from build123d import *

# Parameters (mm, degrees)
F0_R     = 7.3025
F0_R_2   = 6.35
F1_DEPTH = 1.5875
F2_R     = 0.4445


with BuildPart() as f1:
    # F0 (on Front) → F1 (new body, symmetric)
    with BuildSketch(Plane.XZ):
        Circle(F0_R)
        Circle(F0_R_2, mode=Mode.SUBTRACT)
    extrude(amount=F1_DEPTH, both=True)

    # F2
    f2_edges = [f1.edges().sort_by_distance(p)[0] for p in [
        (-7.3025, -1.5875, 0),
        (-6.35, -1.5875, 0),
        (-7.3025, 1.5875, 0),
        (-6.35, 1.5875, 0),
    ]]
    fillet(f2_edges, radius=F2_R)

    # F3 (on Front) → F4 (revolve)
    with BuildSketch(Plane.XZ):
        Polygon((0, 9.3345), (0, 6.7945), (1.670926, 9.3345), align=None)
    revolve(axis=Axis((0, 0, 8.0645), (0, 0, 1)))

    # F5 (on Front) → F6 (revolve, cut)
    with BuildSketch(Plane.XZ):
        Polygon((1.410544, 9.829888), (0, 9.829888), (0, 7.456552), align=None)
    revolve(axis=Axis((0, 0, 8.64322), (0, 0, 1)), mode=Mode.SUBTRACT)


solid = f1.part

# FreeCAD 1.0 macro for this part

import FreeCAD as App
import Part
import Sketcher
from FreeCAD import Vector
Q = App.Units.Quantity


def edges_at(feature, points):
    """Names of the edges that pass closest to the given points."""
    edges = feature.Shape.Edges
    near = lambda p: min(range(len(edges)), key=lambda i: edges[i].distToShape(Part.Vertex(*p))[0])
    return sorted({f"Edge{near(p) + 1}" for p in points})

doc = App.newDocument("Part")
body = doc.addObject("PartDesign::Body", "Body")

# Sketch on XZ plane
sketch1 = doc.addObject("Sketcher::SketchObject", "Sketch")
body.addObject(sketch1)
sketch1.AttachmentSupport = (doc.XZ_Plane, [""])
sketch1.MapMode = "FlatFace"
sketch1.addGeometry(Part.Circle(Vector(0, 0, 0), Vector(0, 0, 1), 7.3025), False)
sketch1.addGeometry(Part.Circle(Vector(0, 0, 0), Vector(0, 0, 1), 6.35), False)
sketch1.addConstraint(Sketcher.Constraint("Coincident", 0, 3, -1, 1))
sketch1.addConstraint(Sketcher.Constraint("Coincident", 1, 3, -1, 1))
sketch1.addConstraint(Sketcher.Constraint("Diameter", 1, Q("0.5 in")))
sketch1.addConstraint(Sketcher.Constraint("Diameter", 0, Q("0.575 in")))
pad1 = doc.addObject("PartDesign::Pad", "Pad")
body.addObject(pad1)
pad1.Profile = sketch1
pad1.Length = Q("0.125 in")
pad1.Midplane = True
doc.recompute()

fillet = doc.addObject("PartDesign::Fillet", "Fillet")
body.addObject(fillet)
fillet.Base = (pad1, edges_at(pad1, [
    (-7.303, -1.587, 0),
    (-6.35, -1.587, 0),
    (-7.303, 1.587, 0),
    (-6.35, 1.587, 0),
]))
fillet.Radius = Q("0.0175 in")

# Sketch on XZ plane
sketch2 = doc.addObject("Sketcher::SketchObject", "Sketch001")
body.addObject(sketch2)
sketch2.AttachmentSupport = (doc.XZ_Plane, [""])
sketch2.MapMode = "FlatFace"
sketch2.addGeometry(Part.LineSegment(Vector(0, 9.3345, 0), Vector(0, 6.7945, 0)), False)
sketch2.addGeometry(Part.LineSegment(Vector(0, 6.7945, 0), Vector(1.670926, 9.3345, 0)), False)
sketch2.addGeometry(Part.LineSegment(Vector(1.670926, 9.3345, 0), Vector(0, 9.3345, 0)), False)
sketch2.addConstraint(Sketcher.Constraint("Coincident", 0, 2, 1, 1))
sketch2.addConstraint(Sketcher.Constraint("Coincident", 1, 2, 2, 1))
sketch2.addConstraint(Sketcher.Constraint("Coincident", 2, 2, 0, 1))
sketch2.addConstraint(Sketcher.Constraint("Vertical", 0))
sketch2.addConstraint(Sketcher.Constraint("Horizontal", 2))
sketch2.addConstraint(Sketcher.Constraint("PointOnObject", 0, 2, -2))
sketch2.addConstraint(Sketcher.Constraint("DistanceY", 0, 2, 0, 1, Q("0.1 in")))
sketch2.addConstraint(Sketcher.Constraint("DistanceY", -1, 1, 0, 2, Q("0.2675 in")))
sketch2.addConstraint(Sketcher.Constraint("DistanceX", 2, 2, 2, 1, Q("1.670926 mm")))
revolution = doc.addObject("PartDesign::Revolution", "Revolution")
body.addObject(revolution)
revolution.Profile = sketch2
revolution.ReferenceAxis = (sketch2, ["V_Axis"])
revolution.Angle = 360

# Sketch on XZ plane
sketch3 = doc.addObject("Sketcher::SketchObject", "Sketch002")
body.addObject(sketch3)
sketch3.AttachmentSupport = (doc.XZ_Plane, [""])
sketch3.MapMode = "FlatFace"
sketch3.addGeometry(Part.LineSegment(Vector(1.410544, 9.829888, 0), Vector(0, 9.829888, 0)), False)
sketch3.addGeometry(Part.LineSegment(Vector(0, 9.829888, 0), Vector(0, 7.456552, 0)), False)
sketch3.addGeometry(Part.LineSegment(Vector(0, 7.456552, 0), Vector(1.410544, 9.829888, 0)), False)
sketch3.addConstraint(Sketcher.Constraint("Coincident", 0, 2, 1, 1))
sketch3.addConstraint(Sketcher.Constraint("Coincident", 1, 2, 2, 1))
sketch3.addConstraint(Sketcher.Constraint("Coincident", 2, 2, 0, 1))
sketch3.addConstraint(Sketcher.Constraint("Horizontal", 0))
sketch3.addConstraint(Sketcher.Constraint("Vertical", 1))
sketch3.addConstraint(Sketcher.Constraint("PointOnObject", 0, 2, -2))
sketch3.addConstraint(Sketcher.Constraint("Distance", 2, Q("2.760862 mm")))
sketch3.addConstraint(Sketcher.Constraint("DistanceX", 0, 2, 0, 1, Q("1.410544 mm")))
sketch3.addConstraint(Sketcher.Constraint("DistanceY", -1, 1, 0, 2, Q("9.829888 mm")))
groove = doc.addObject("PartDesign::Groove", "Groove")
body.addObject(groove)
groove.Profile = sketch3
groove.ReferenceAxis = (sketch3, ["V_Axis"])
groove.Angle = 360

doc.recompute()
